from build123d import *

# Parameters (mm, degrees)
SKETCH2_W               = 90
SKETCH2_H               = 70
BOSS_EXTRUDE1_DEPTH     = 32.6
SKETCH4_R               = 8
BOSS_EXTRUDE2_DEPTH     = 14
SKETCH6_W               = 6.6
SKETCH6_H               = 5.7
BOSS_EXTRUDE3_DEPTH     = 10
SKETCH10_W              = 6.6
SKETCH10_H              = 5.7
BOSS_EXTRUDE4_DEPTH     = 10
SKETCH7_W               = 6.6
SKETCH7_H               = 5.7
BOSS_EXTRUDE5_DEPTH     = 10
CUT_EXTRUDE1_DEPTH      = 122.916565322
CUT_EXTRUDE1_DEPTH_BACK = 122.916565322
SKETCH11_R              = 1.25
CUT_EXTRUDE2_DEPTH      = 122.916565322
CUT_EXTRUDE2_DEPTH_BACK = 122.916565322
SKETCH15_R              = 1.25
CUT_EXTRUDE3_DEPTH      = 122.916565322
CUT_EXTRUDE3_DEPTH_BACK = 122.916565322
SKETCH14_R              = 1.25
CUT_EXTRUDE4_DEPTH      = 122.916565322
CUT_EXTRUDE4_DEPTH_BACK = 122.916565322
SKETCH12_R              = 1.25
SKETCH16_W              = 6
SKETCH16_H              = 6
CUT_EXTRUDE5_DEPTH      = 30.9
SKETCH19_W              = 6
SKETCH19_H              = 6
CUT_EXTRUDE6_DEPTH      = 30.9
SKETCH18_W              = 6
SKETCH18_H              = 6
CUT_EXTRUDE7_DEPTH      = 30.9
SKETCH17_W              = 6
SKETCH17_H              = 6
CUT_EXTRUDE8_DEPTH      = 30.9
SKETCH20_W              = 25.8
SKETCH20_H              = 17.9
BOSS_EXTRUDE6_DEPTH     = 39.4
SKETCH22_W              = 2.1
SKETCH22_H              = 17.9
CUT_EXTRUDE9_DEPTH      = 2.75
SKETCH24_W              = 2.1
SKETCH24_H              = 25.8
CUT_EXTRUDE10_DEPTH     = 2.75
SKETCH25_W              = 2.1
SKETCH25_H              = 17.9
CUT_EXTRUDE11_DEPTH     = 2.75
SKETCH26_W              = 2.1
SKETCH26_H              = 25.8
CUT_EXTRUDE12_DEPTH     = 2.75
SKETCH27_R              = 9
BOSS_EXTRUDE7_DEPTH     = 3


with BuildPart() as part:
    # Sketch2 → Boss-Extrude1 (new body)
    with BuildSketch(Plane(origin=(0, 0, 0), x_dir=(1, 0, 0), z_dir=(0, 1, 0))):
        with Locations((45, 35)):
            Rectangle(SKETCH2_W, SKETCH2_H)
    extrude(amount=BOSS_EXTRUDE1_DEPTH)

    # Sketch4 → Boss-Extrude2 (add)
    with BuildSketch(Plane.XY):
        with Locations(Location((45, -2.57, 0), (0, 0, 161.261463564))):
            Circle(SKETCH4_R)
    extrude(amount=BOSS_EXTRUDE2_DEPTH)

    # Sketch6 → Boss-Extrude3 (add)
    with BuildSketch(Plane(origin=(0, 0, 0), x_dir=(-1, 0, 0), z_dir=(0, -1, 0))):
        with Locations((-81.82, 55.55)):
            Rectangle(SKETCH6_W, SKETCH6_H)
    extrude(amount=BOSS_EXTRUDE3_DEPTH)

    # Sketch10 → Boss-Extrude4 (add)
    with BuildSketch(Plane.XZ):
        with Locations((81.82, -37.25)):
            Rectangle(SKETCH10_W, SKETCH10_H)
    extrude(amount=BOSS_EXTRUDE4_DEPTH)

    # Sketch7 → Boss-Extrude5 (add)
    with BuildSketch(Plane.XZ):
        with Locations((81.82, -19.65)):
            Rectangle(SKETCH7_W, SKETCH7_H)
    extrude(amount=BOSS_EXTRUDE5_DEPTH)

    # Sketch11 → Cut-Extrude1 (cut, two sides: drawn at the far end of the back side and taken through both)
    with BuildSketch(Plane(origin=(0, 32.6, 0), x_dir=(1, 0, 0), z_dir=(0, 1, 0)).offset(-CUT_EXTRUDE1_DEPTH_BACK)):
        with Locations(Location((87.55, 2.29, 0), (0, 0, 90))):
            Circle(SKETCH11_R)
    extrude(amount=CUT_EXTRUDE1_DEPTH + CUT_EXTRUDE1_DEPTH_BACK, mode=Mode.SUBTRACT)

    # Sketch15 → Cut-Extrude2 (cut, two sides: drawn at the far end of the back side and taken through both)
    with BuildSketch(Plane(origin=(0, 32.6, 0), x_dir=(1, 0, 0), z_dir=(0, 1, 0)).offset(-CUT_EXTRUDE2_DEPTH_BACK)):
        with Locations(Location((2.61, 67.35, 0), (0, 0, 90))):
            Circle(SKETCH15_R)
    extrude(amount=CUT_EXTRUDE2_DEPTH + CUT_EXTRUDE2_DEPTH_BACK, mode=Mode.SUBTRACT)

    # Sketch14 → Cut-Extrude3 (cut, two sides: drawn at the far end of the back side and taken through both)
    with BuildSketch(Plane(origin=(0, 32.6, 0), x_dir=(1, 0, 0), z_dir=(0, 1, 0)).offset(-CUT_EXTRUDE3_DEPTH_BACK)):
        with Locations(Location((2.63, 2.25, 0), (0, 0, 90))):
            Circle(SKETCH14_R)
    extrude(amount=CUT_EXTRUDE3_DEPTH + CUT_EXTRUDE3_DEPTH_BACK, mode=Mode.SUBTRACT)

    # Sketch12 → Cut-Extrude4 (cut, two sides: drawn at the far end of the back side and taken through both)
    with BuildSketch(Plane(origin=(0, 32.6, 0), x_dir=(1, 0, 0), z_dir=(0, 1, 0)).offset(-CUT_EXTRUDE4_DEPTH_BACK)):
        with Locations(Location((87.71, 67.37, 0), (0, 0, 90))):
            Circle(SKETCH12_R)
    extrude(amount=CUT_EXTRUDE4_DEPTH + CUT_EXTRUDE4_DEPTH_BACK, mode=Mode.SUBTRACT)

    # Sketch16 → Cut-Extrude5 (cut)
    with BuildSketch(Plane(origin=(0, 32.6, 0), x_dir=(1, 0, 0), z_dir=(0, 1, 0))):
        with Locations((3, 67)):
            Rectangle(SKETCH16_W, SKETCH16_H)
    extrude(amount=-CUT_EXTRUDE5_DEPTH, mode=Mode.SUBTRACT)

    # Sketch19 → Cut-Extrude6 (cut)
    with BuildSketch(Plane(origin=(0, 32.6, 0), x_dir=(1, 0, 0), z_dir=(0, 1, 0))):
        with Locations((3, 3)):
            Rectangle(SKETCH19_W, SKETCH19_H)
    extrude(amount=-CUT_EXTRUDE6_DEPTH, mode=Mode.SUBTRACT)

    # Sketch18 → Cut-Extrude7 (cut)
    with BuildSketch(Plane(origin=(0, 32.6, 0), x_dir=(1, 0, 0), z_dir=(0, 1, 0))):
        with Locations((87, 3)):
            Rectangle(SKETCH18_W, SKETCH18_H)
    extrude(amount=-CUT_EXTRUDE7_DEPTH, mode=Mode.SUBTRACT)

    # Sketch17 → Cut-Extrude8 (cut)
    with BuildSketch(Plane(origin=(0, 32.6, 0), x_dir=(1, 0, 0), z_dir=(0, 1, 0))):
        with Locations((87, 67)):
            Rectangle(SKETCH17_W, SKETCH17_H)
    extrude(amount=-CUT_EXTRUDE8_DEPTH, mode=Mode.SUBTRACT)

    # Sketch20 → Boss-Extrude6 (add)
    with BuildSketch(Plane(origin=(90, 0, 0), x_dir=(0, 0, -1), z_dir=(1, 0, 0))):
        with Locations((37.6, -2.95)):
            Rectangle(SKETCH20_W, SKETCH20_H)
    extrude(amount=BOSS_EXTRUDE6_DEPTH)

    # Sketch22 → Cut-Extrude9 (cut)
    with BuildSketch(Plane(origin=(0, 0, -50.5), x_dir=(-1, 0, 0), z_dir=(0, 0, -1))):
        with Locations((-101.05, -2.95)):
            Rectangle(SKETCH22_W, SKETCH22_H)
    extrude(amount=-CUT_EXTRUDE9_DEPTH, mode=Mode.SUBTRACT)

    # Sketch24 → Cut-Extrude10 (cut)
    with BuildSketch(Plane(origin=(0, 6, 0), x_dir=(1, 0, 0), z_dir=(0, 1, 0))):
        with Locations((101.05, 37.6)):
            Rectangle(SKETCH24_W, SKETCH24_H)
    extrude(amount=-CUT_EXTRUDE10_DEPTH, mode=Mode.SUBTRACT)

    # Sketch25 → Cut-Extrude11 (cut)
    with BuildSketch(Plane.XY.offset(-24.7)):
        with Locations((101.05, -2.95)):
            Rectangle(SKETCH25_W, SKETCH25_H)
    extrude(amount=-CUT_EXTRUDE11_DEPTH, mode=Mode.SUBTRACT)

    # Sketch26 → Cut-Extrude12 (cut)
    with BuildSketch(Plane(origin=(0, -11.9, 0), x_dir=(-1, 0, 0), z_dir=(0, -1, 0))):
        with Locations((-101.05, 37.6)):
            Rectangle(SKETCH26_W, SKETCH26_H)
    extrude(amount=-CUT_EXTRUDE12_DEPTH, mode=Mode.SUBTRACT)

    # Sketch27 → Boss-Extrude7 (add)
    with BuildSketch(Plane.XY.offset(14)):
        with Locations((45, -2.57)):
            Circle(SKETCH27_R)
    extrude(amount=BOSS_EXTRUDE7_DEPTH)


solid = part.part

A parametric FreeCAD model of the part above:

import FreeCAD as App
import Part
import Sketcher
from FreeCAD import Vector
Q = App.Units.Quantity


def add_polygon(sketch, points):
    """Adds a closed chain of lines whose ends are joined by coincident constraints."""
    first, n = sketch.GeometryCount, len(points)
    for a, b in zip(points, points[1:] + points[:1]):
        sketch.addGeometry(Part.LineSegment(App.Vector(*a, 0), App.Vector(*b, 0)), False)
    for i in range(n):
        sketch.addConstraint(Sketcher.Constraint("Coincident", first + i, 2, first + (i + 1) % n, 1))

doc = App.newDocument("Part")
body = doc.addObject("PartDesign::Body", "Body")

sketch1 = body.newObject("Sketcher::SketchObject", "Sketch")
sketch1.AttachmentSupport = (doc.getObject("XZ_Plane"), [""])
sketch1.MapMode = "FlatFace"
add_polygon(sketch1, [(0, -70), (0, 0), (90, 0), (90, -70)])
sketch1.addConstraint([
    Sketcher.Constraint("Vertical", 0),
    Sketcher.Constraint("Horizontal", 1),
    Sketcher.Constraint("Vertical", 2),
    Sketcher.Constraint("Horizontal", 3),
    Sketcher.Constraint("Coincident", 0, 2, -1, 1),
    Sketcher.Constraint("DistanceX", 1, 1, 1, 2, Q("90 mm")),
    Sketcher.Constraint("DistanceY", 0, 1, 0, 2, Q("70 mm")),
])
pad1 = body.newObject("PartDesign::Pad", "Pad")
pad1.Profile = sketch1
pad1.Length = 32.6
pad1.Reversed = True

sketch2 = body.newObject("Sketcher::SketchObject", "Sketch001")
sketch2.AttachmentSupport = (doc.getObject("XY_Plane"), [""])
sketch2.MapMode = "FlatFace"
sketch2.addGeometry(Part.Circle(Vector(45, -3, 0), Vector(0, 0, 1), 8), False)
sketch2.addConstraint([
    Sketcher.Constraint("Diameter", 0, Q("16 mm")),
    Sketcher.Constraint("DistanceX", -1, 1, 0, 3, Q("45 mm")),
    Sketcher.Constraint("DistanceY", 0, 3, -1, 1, Q("2.57 mm")),
])
pad2 = body.newObject("PartDesign::Pad", "Pad001")
pad2.Profile = sketch2
pad2.Length = 14

sketch3 = body.newObject("Sketcher::SketchObject", "Sketch002")
sketch3.AttachmentSupport = (doc.getObject("XZ_Plane"), [""])
sketch3.MapMode = "FlatFace"
add_polygon(sketch3, [(85, -58), (85, -53), (79, -53), (79, -58)])
sketch3.addConstraint([
    Sketcher.Constraint("Vertical", 0),
    Sketcher.Constraint("Horizontal", 1),
    Sketcher.Constraint("Vertical", 2),
    Sketcher.Constraint("Horizontal", 3),
    Sketcher.Constraint("DistanceX", 1, 2, 1, 1, Q("6.6 mm")),
    Sketcher.Constraint("DistanceY", 0, 1, 0, 2, Q("5.7 mm")),
    Sketcher.Constraint("DistanceY", 0, 2, -1, 1, Q("52.7 mm")),
    Sketcher.Constraint("DistanceX", -1, 1, 0, 2, Q("85.12 mm")),
])
pad3 = body.newObject("PartDesign::Pad", "Pad002")
pad3.Profile = sketch3
pad3.Length = 10

sketch4 = body.newObject("Sketcher::SketchObject", "Sketch003")
sketch4.AttachmentSupport = (doc.getObject("XZ_Plane"), [""])
sketch4.MapMode = "FlatFace"
add_polygon(sketch4, [(79, -34), (79, -40), (85, -40), (85, -34)])
sketch4.addConstraint([
    Sketcher.Constraint("Vertical", 0),
    Sketcher.Constraint("Horizontal", 1),
    Sketcher.Constraint("Vertical", 2),
    Sketcher.Constraint("Horizontal", 3),
    Sketcher.Constraint("DistanceX", 1, 1, 1, 2, Q("6.6 mm")),
    Sketcher.Constraint("DistanceY", 0, 2, 0, 1, Q("5.7 mm")),
    Sketcher.Constraint("DistanceY", 0, 2, -1, 1, Q("40.1 mm")),
    Sketcher.Constraint("DistanceX", -1, 1, 0, 2, Q("78.52 mm")),
])
pad4 = body.newObject("PartDesign::Pad", "Pad003")
pad4.Profile = sketch4
pad4.Length = 10

sketch5 = body.newObject("Sketcher::SketchObject", "Sketch004")
sketch5.AttachmentSupport = (doc.getObject("XZ_Plane"), [""])
sketch5.MapMode = "FlatFace"
add_polygon(sketch5, [(79, -17), (79, -22), (85, -22), (85, -17)])
sketch5.addConstraint([
    Sketcher.Constraint("Vertical", 0),
    Sketcher.Constraint("Horizontal", 1),
    Sketcher.Constraint("Vertical", 2),
    Sketcher.Constraint("Horizontal", 3),
    Sketcher.Constraint("DistanceX", 1, 1, 1, 2, Q("6.6 mm")),
    Sketcher.Constraint("DistanceY", 0, 2, 0, 1, Q("5.7 mm")),
    Sketcher.Constraint("DistanceY", 0, 2, -1, 1, Q("22.5 mm")),
    Sketcher.Constraint("DistanceX", -1, 1, 0, 2, Q("78.52 mm")),
])
pad5 = body.newObject("PartDesign::Pad", "Pad004")
pad5.Profile = sketch5
pad5.Length = 10

sketch6 = body.newObject("Sketcher::SketchObject", "Sketch005")
sketch6.AttachmentSupport = (doc.getObject("XZ_Plane"), [""])
sketch6.MapMode = "FlatFace"
sketch6.AttachmentOffset = App.Placement(Vector(0, 0, -32.6), App.Rotation())
sketch6.addGeometry(Part.Circle(Vector(87.5, -2.3, 0), Vector(0, 0, 1), 1.2), False)
sketch6.addConstraint([
    Sketcher.Constraint("Diameter", 0, Q("2.5 mm")),
    Sketcher.Constraint("DistanceX", -1, 1, 0, 3, Q("87.55 mm")),
    Sketcher.Constraint("DistanceY", 0, 3, -1, 1, Q("2.29 mm")),
])
pocket1 = body.newObject("PartDesign::Pocket", "Pocket")
pocket1.Profile = sketch6
pocket1.Type = "ThroughAll"
pocket1.Midplane = True

sketch7 = body.newObject("Sketcher::SketchObject", "Sketch006")
sketch7.AttachmentSupport = (doc.getObject("XZ_Plane"), [""])
sketch7.MapMode = "FlatFace"
sketch7.AttachmentOffset = App.Placement(Vector(0, 0, -32.6), App.Rotation())
sketch7.addGeometry(Part.Circle(Vector(2.6, -67.3, 0), Vector(0, 0, 1), 1.2), False)
sketch7.addConstraint([
    Sketcher.Constraint("Diameter", 0, Q("2.5 mm")),
    Sketcher.Constraint("DistanceX", -1, 1, 0, 3, Q("2.61 mm")),
    Sketcher.Constraint("DistanceY", 0, 3, -1, 1, Q("67.35 mm")),
])
pocket2 = body.newObject("PartDesign::Pocket", "Pocket001")
pocket2.Profile = sketch7
pocket2.Type = "ThroughAll"
pocket2.Midplane = True

sketch8 = body.newObject("Sketcher::SketchObject", "Sketch007")
sketch8.AttachmentSupport = (doc.getObject("XZ_Plane"), [""])
sketch8.MapMode = "FlatFace"
sketch8.AttachmentOffset = App.Placement(Vector(0, 0, -32.6), App.Rotation())
sketch8.addGeometry(Part.Circle(Vector(2.6, -2.2, 0), Vector(0, 0, 1), 1.2), False)
sketch8.addConstraint([
    Sketcher.Constraint("Diameter", 0, Q("2.5 mm")),
    Sketcher.Constraint("DistanceX", -1, 1, 0, 3, Q("2.63 mm")),
    Sketcher.Constraint("DistanceY", 0, 3, -1, 1, Q("2.25 mm")),
])
pocket3 = body.newObject("PartDesign::Pocket", "Pocket002")
pocket3.Profile = sketch8
pocket3.Type = "ThroughAll"
pocket3.Midplane = True

sketch9 = body.newObject("Sketcher::SketchObject", "Sketch008")
sketch9.AttachmentSupport = (doc.getObject("XZ_Plane"), [""])
sketch9.MapMode = "FlatFace"
sketch9.AttachmentOffset = App.Placement(Vector(0, 0, -32.6), App.Rotation())
sketch9.addGeometry(Part.Circle(Vector(87.7, -67.4, 0), Vector(0, 0, 1), 1.2), False)
sketch9.addConstraint([
    Sketcher.Constraint("Diameter", 0, Q("2.5 mm")),
    Sketcher.Constraint("DistanceX", -1, 1, 0, 3, Q("87.71 mm")),
    Sketcher.Constraint("DistanceY", 0, 3, -1, 1, Q("67.37 mm")),
])
pocket4 = body.newObject("PartDesign::Pocket", "Pocket003")
pocket4.Profile = sketch9
pocket4.Type = "ThroughAll"
pocket4.Midplane = True

sketch10 = body.newObject("Sketcher::SketchObject", "Sketch009")
sketch10.AttachmentSupport = (doc.getObject("XZ_Plane"), [""])
sketch10.MapMode = "FlatFace"
sketch10.AttachmentOffset = App.Placement(Vector(0, 0, -32.6), App.Rotation())
add_polygon(sketch10, [(0, -70), (0, -64), (6, -64), (6, -70)])
sketch10.addConstraint([
    Sketcher.Constraint("Vertical", 0),
    Sketcher.Constraint("Horizontal", 1),
    Sketcher.Constraint("Vertical", 2),
    Sketcher.Constraint("Horizontal", 3),
    Sketcher.Constraint("PointOnObject", 0, 2, -2),
    Sketcher.Constraint("Equal", 3, 0),
    Sketcher.Constraint("DistanceX", 1, 1, 1, 2, Q("6 mm")),
    Sketcher.Constraint("DistanceY", 0, 2, -1, 1, Q("64 mm")),
])
pocket5 = body.newObject("PartDesign::Pocket", "Pocket004")
pocket5.Profile = sketch10
pocket5.Length = 30.9
pocket5.Reversed = True

sketch11 = body.newObject("Sketcher::SketchObject", "Sketch010")
sketch11.AttachmentSupport = (doc.getObject("XZ_Plane"), [""])
sketch11.MapMode = "FlatFace"
sketch11.AttachmentOffset = App.Placement(Vector(0, 0, -32.6), App.Rotation())
add_polygon(sketch11, [(0, -6), (0, 0), (6, 0), (6, -6)])
sketch11.addConstraint([
    Sketcher.Constraint("Vertical", 0),
    Sketcher.Constraint("Horizontal", 1),
    Sketcher.Constraint("Vertical", 2),
    Sketcher.Constraint("Horizontal", 3),
    Sketcher.Constraint("Coincident", 0, 2, -1, 1),
    Sketcher.Constraint("Equal", 3, 0),
    Sketcher.Constraint("DistanceX", 1, 1, 1, 2, Q("6 mm")),
])
pocket6 = body.newObject("PartDesign::Pocket", "Pocket005")
pocket6.Profile = sketch11
pocket6.Length = 30.9
pocket6.Reversed = True

sketch12 = body.newObject("Sketcher::SketchObject", "Sketch011")
sketch12.AttachmentSupport = (doc.getObject("XZ_Plane"), [""])
sketch12.MapMode = "FlatFace"
sketch12.AttachmentOffset = App.Placement(Vector(0, 0, -32.6), App.Rotation())
add_polygon(sketch12, [(84, -6), (84, 0), (90, 0), (90, -6)])
sketch12.addConstraint([
    Sketcher.Constraint("Vertical", 0),
    Sketcher.Constraint("Horizontal", 1),
    Sketcher.Constraint("Vertical", 2),
    Sketcher.Constraint("Horizontal", 3),
    Sketcher.Constraint("PointOnObject", 0, 2, -1),
    Sketcher.Constraint("Equal", 3, 0),
    Sketcher.Constraint("DistanceX", 1, 1, 1, 2, Q("6 mm")),
    Sketcher.Constraint("DistanceX", -1, 1, 0, 2, Q("84 mm")),
])
pocket7 = body.newObject("PartDesign::Pocket", "Pocket006")
pocket7.Profile = sketch12
pocket7.Length = 30.9
pocket7.Reversed = True

sketch13 = body.newObject("Sketcher::SketchObject", "Sketch012")
sketch13.AttachmentSupport = (doc.getObject("XZ_Plane"), [""])
sketch13.MapMode = "FlatFace"
sketch13.AttachmentOffset = App.Placement(Vector(0, 0, -32.6), App.Rotation())
add_polygon(sketch13, [(84, -70), (84, -64), (90, -64), (90, -70)])
sketch13.addConstraint([
    Sketcher.Constraint("Vertical", 0),
    Sketcher.Constraint("Horizontal", 1),
    Sketcher.Constraint("Vertical", 2),
    Sketcher.Constraint("Horizontal", 3),
    Sketcher.Constraint("Equal", 3, 0),
    Sketcher.Constraint("DistanceX", 1, 1, 1, 2, Q("6 mm")),
    Sketcher.Constraint("DistanceX", -1, 1, 0, 2, Q("84 mm")),
    Sketcher.Constraint("DistanceY", 0, 2, -1, 1, Q("64 mm")),
])
pocket8 = body.newObject("PartDesign::Pocket", "Pocket007")
pocket8.Profile = sketch13
pocket8.Length = 30.9
pocket8.Reversed = True

sketch14 = body.newObject("Sketcher::SketchObject", "Sketch013")
sketch14.AttachmentSupport = (doc.getObject("YZ_Plane"), [""])
sketch14.MapMode = "FlatFace"
sketch14.AttachmentOffset = App.Placement(Vector(0, 0, 90), App.Rotation())
add_polygon(sketch14, [(6, -25), (-12, -25), (-12, -50), (6, -50)])
sketch14.addConstraint([
    Sketcher.Constraint("Horizontal", 0),
    Sketcher.Constraint("Vertical", 1),
    Sketcher.Constraint("Horizontal", 2),
    Sketcher.Constraint("Vertical", 3),
    Sketcher.Constraint("DistanceX", 0, 2, 0, 1, Q("17.9 mm")),
    Sketcher.Constraint("DistanceY", 1, 2, 1, 1, Q("25.8 mm")),
    Sketcher.Constraint("DistanceX", -1, 1, 2, 2, Q("6 mm")),
    Sketcher.Constraint("DistanceY", 0, 2, -1, 1, Q("24.7 mm")),
])
pad6 = body.newObject("PartDesign::Pad", "Pad005")
pad6.Profile = sketch14
pad6.Length = 39.4

sketch15 = body.newObject("Sketcher::SketchObject", "Sketch014")
sketch15.AttachmentSupport = (doc.getObject("XY_Plane"), [""])
sketch15.MapMode = "FlatFace"
sketch15.AttachmentOffset = App.Placement(Vector(0, 0, -50.5), App.Rotation())
add_polygon(sketch15, [(102.1, 6), (102.1, -11.9), (100, -11.9), (100, 6)])
sketch15.addConstraint([
    Sketcher.Constraint("Vertical", 0),
    Sketcher.Constraint("Horizontal", 1),
    Sketcher.Constraint("Vertical", 2),
    Sketcher.Constraint("Horizontal", 3),
    Sketcher.Constraint("DistanceX", 1, 2, 1, 1, Q("2.1 mm")),
    Sketcher.Constraint("DistanceY", 0, 2, 0, 1, Q("17.9 mm")),
    Sketcher.Constraint("DistanceX", -1, 1, 1, 2, Q("100 mm")),
    Sketcher.Constraint("DistanceY", -1, 1, 2, 2, Q("6 mm")),
])
pocket9 = body.newObject("PartDesign::Pocket", "Pocket008")
pocket9.Profile = sketch15
pocket9.Length = 2.75
pocket9.Reversed = True

sketch16 = body.newObject("Sketcher::SketchObject", "Sketch015")
sketch16.AttachmentSupport = (doc.getObject("XZ_Plane"), [""])
sketch16.MapMode = "FlatFace"
sketch16.AttachmentOffset = App.Placement(Vector(0, 0, -6), App.Rotation())
add_polygon(sketch16, [(100, -50.5), (100, -24.7), (102.1, -24.7), (102.1, -50.5)])
sketch16.addConstraint([
    Sketcher.Constraint("Vertical", 0),
    Sketcher.Constraint("Horizontal", 1),
    Sketcher.Constraint("Vertical", 2),
    Sketcher.Constraint("Horizontal", 3),
    Sketcher.Constraint("DistanceX", 1, 1, 1, 2, Q("2.1 mm")),
    Sketcher.Constraint("DistanceY", 0, 1, 0, 2, Q("25.8 mm")),
    Sketcher.Constraint("DistanceX", -1, 1, 0, 2, Q("100 mm")),
    Sketcher.Constraint("DistanceY", 0, 2, -1, 1, Q("24.7 mm")),
])
pocket10 = body.newObject("PartDesign::Pocket", "Pocket009")
pocket10.Profile = sketch16
pocket10.Length = 2.75
pocket10.Reversed = True

sketch17 = body.newObject("Sketcher::SketchObject", "Sketch016")
sketch17.AttachmentSupport = (doc.getObject("XY_Plane"), [""])
sketch17.MapMode = "FlatFace"
sketch17.AttachmentOffset = App.Placement(Vector(0, 0, -24.7), App.Rotation())
add_polygon(sketch17, [(100, 6), (100, -11.9), (102.1, -11.9), (102.1, 6)])
sketch17.addConstraint([
    Sketcher.Constraint("Vertical", 0),
    Sketcher.Constraint("Horizontal", 1),
    Sketcher.Constraint("Vertical", 2),
    Sketcher.Constraint("Horizontal", 3),
    Sketcher.Constraint("DistanceX", 1, 1, 1, 2, Q("2.1 mm")),
    Sketcher.Constraint("DistanceY", 0, 2, 0, 1, Q("17.9 mm")),
    Sketcher.Constraint("DistanceX", -1, 1, 0, 2, Q("100 mm")),
    Sketcher.Constraint("DistanceY", -1, 1, 2, 2, Q("6 mm")),
])
pocket11 = body.newObject("PartDesign::Pocket", "Pocket010")
pocket11.Profile = sketch17
pocket11.Length = 2.75

sketch18 = body.newObject("Sketcher::SketchObject", "Sketch017")
sketch18.AttachmentSupport = (doc.getObject("XZ_Plane"), [""])
sketch18.MapMode = "FlatFace"
sketch18.AttachmentOffset = App.Placement(Vector(0, 0, 11.9), App.Rotation())
add_polygon(sketch18, [(102.1, -50.5), (102.1, -24.7), (100, -24.7), (100, -50.5)])
sketch18.addConstraint([
    Sketcher.Constraint("Vertical", 0),
    Sketcher.Constraint("Horizontal", 1),
    Sketcher.Constraint("Vertical", 2),
    Sketcher.Constraint("Horizontal", 3),
    Sketcher.Constraint("DistanceX", 1, 2, 1, 1, Q("2.1 mm")),
    Sketcher.Constraint("DistanceY", 0, 1, 0, 2, Q("25.8 mm")),
    Sketcher.Constraint("DistanceX", -1, 1, 1, 2, Q("100 mm")),
    Sketcher.Constraint("DistanceY", 0, 2, -1, 1, Q("24.7 mm")),
])
pocket12 = body.newObject("PartDesign::Pocket", "Pocket011")
pocket12.Profile = sketch18
pocket12.Length = 2.75

sketch19 = body.newObject("Sketcher::SketchObject", "Sketch018")
sketch19.AttachmentSupport = (doc.getObject("XY_Plane"), [""])
sketch19.MapMode = "FlatFace"
sketch19.AttachmentOffset = App.Placement(Vector(0, 0, 14), App.Rotation())
sketch19.addGeometry(Part.Circle(Vector(45, -3, 0), Vector(0, 0, 1), 9), False)
sketch19.addConstraint([
    Sketcher.Constraint("Diameter", 0, Q("18 mm")),
    Sketcher.Constraint("DistanceX", -1, 1, 0, 3, Q("45 mm")),
    Sketcher.Constraint("DistanceY", 0, 3, -1, 1, Q("2.57 mm")),
])
pad7 = body.newObject("PartDesign::Pad", "Pad006")
pad7.Profile = sketch19
pad7.Length = 3

doc.recompute()
